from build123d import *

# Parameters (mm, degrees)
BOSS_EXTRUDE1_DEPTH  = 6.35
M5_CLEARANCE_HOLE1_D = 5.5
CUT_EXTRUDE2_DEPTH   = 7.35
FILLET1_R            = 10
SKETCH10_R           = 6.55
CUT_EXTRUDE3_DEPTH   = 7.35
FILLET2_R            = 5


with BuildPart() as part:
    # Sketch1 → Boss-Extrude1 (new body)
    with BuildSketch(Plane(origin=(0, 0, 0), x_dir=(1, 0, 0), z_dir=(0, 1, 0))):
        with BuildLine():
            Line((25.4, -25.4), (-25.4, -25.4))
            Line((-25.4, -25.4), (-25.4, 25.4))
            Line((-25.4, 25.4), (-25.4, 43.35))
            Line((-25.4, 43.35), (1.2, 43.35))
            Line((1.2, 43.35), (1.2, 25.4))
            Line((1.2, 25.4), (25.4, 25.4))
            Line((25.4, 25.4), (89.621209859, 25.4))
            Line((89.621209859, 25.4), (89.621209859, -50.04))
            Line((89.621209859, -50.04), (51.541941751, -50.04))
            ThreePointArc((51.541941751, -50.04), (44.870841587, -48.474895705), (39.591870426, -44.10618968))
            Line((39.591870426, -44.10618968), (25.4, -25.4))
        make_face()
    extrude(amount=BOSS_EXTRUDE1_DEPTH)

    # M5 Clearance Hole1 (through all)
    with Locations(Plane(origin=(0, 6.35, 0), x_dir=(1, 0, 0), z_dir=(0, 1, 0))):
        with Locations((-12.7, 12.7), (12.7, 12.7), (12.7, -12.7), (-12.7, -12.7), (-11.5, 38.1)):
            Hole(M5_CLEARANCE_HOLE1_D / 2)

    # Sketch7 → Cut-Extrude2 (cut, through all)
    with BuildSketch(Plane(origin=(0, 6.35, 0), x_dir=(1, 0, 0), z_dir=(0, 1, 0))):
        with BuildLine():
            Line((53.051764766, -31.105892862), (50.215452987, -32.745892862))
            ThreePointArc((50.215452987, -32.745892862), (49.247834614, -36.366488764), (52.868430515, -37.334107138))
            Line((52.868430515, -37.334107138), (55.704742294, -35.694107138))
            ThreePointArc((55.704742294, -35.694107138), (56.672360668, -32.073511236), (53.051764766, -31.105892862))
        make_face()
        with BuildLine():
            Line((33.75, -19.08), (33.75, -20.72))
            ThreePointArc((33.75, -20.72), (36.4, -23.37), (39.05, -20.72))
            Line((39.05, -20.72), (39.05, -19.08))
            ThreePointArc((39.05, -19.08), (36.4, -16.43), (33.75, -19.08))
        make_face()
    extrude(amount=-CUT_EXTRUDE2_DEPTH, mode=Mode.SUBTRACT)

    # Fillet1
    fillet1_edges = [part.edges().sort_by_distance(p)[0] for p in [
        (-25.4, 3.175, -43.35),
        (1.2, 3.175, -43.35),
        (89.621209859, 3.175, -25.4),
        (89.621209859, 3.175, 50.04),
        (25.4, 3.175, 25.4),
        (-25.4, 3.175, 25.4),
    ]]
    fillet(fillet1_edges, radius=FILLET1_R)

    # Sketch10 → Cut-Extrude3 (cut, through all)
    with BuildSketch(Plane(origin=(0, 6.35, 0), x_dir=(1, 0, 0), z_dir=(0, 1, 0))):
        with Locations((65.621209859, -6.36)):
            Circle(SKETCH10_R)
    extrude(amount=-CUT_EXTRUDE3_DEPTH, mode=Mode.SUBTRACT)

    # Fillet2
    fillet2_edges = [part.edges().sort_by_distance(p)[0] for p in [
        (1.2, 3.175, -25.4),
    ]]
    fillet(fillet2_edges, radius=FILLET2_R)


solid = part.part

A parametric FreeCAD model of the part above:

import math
import FreeCAD as App
import Part
import Sketcher
from FreeCAD import Vector


def edges_at(feature, points):
    """Names of the edges that pass closest to the given points."""
    edges = feature.Shape.Edges
    near = lambda p: min(range(len(edges)), key=lambda i: edges[i].distToShape(Part.Vertex(*p))[0])
    return sorted({f"Edge{near(p) + 1}" for p in points})

doc = App.newDocument("Part")
body = doc.addObject("PartDesign::Body", "Body")

# Sketch on XZ plane
sketch1 = body.newObject("Sketcher::SketchObject", "Sketch")
sketch1.AttachmentSupport = (doc.getObject("XZ_Plane"), [""])
sketch1.MapMode = "FlatFace"
sketch1.addGeometry([
    Part.LineSegment(Vector(-25.4, 25.4, 0), Vector(25.4, 25.4, 0)),  # 0
    Part.LineSegment(Vector(25.4, 25.4, 0), Vector(39.59187, 44.10619, 0)),  # 1
    Part.ArcOfCircle(Part.Circle(Vector(51.541942, 35.04, 0), Vector(0, 0, 1), 15), math.radians(90), math.radians(142.813412)),  # 2
    Part.LineSegment(Vector(51.541942, 50.04, 0), Vector(89.62121, 50.04, 0)),  # 3
    Part.LineSegment(Vector(89.62121, 50.04, 0), Vector(89.62121, -25.4, 0)),  # 4
    Part.LineSegment(Vector(89.62121, -25.4, 0), Vector(1.2, -25.4, 0)),  # 5
    Part.LineSegment(Vector(1.2, -25.4, 0), Vector(1.2, -43.35, 0)),  # 6
    Part.LineSegment(Vector(1.2, -43.35, 0), Vector(-25.4, -43.35, 0)),  # 7
    Part.LineSegment(Vector(-25.4, -43.35, 0), Vector(-25.4, 25.4, 0)),  # 8
], False)
sketch1.addConstraint([
    Sketcher.Constraint("Coincident", 0, 2, 1, 1),
    Sketcher.Constraint("Tangent", 1, 2, 2, 2),
    Sketcher.Constraint("Tangent", 2, 1, 3, 1),
    Sketcher.Constraint("Coincident", 3, 2, 4, 1),
    Sketcher.Constraint("Coincident", 4, 2, 5, 1),
    Sketcher.Constraint("Coincident", 5, 2, 6, 1),
    Sketcher.Constraint("Coincident", 6, 2, 7, 1),
    Sketcher.Constraint("Coincident", 7, 2, 8, 1),
    Sketcher.Constraint("Coincident", 8, 2, 0, 1),
    Sketcher.Constraint("Horizontal", 0),
    Sketcher.Constraint("Horizontal", 3),
    Sketcher.Constraint("Vertical", 4),
    Sketcher.Constraint("Horizontal", 5),
    Sketcher.Constraint("Vertical", 6),
    Sketcher.Constraint("Horizontal", 7),
    Sketcher.Constraint("Vertical", 8),
    Sketcher.Constraint("Radius", 2, 15.0),
    Sketcher.Constraint("DistanceX", 0, 1, 0, 2, 50.8),
    Sketcher.Constraint("DistanceX", 7, 2, 7, 1, 26.6),
    Sketcher.Constraint("DistanceY", 4, 2, 4, 1, 75.44),
    Sketcher.Constraint("DistanceY", 6, 2, 6, 1, 17.95),
    Sketcher.Constraint("DistanceY", 8, 1, 8, 2, 68.75),
    Sketcher.Constraint("DistanceX", -1, 1, 0, 2, 25.4),
    Sketcher.Constraint("DistanceY", -1, 1, 0, 2, 25.4),
    Sketcher.Constraint("DistanceX", 3, 1, 3, 2, 38.079268),
    Sketcher.Constraint("DistanceX", 5, 2, 5, 1, 88.42121),
])
pad1 = body.newObject("PartDesign::Pad", "Pad")
pad1.Profile = sketch1
pad1.Length = 6.35
pad1.Reversed = True

# Sketch on XZ plane
sketch2 = body.newObject("Sketcher::SketchObject", "Sketch001")
sketch2.AttachmentSupport = (doc.getObject("XZ_Plane"), [""])
sketch2.MapMode = "FlatFace"
sketch2.AttachmentOffset = App.Placement(Vector(0, 0, -6.35), App.Rotation())
sketch2.addGeometry([
    Part.Circle(Vector(-12.7, -12.7, 0), Vector(0, 0, 1), 2.75),  # 0
    Part.Circle(Vector(12.7, -12.7, 0), Vector(0, 0, 1), 2.75),  # 1
    Part.Circle(Vector(12.7, 12.7, 0), Vector(0, 0, 1), 2.75),  # 2
    Part.Circle(Vector(-12.7, 12.7, 0), Vector(0, 0, 1), 2.75),  # 3
    Part.Circle(Vector(-11.5, -38.1, 0), Vector(0, 0, 1), 2.75),  # 4
], False)
sketch2.addConstraint([
    Sketcher.Constraint("Equal", 0, 1),
    Sketcher.Constraint("Equal", 1, 2),
    Sketcher.Constraint("Equal", 2, 3),
    Sketcher.Constraint("Equal", 3, 4),
    Sketcher.Constraint("Symmetric", 0, 3, 2, 3, -1, 1),
    Sketcher.Constraint("Symmetric", 1, 3, 3, 3, -1, 1),
    Sketcher.Constraint("Symmetric", 0, 3, 1, 3, -2),
    Sketcher.Constraint("Diameter", 0, 5.5),
    Sketcher.Constraint("DistanceX", 0, 3, -1, 1, 12.7),
    Sketcher.Constraint("DistanceY", 0, 3, -1, 1, 12.7),
    Sketcher.Constraint("DistanceX", 4, 3, -1, 1, 11.5),
    Sketcher.Constraint("DistanceY", 4, 3, -1, 1, 38.1),
])
doc.recompute()
hole = body.newObject("PartDesign::Hole", "Hole")
hole.Profile = sketch2
hole.ThreadType = "None"
hole.Diameter = 5.5
hole.DepthType = "ThroughAll"
hole.Reversed = True

# Sketch on XZ plane
sketch3 = body.newObject("Sketcher::SketchObject", "Sketch002")
sketch3.AttachmentSupport = (doc.getObject("XZ_Plane"), [""])
sketch3.MapMode = "FlatFace"
sketch3.AttachmentOffset = App.Placement(Vector(0, 0, -6.35), App.Rotation())
sketch3.addGeometry([
    Part.LineSegment(Vector(53.051765, 31.105893, 0), Vector(50.215453, 32.745893, 0)),  # 0
    Part.ArcOfCircle(Part.Circle(Vector(51.541942, 35.04, 0), Vector(0, 0, 1), 2.65), math.radians(59.962825), math.radians(239.962825)),  # 1
    Part.LineSegment(Vector(52.868431, 37.334107, 0), Vector(55.704742, 35.694107, 0)),  # 2
    Part.ArcOfCircle(Part.Circle(Vector(54.378254, 33.4, 0), Vector(0, 0, 1), 2.65), math.radians(-120.037175), math.radians(59.962825)),  # 3
    Part.LineSegment(Vector(33.75, 19.08, 0), Vector(33.75, 20.72, 0)),  # 4
    Part.ArcOfCircle(Part.Circle(Vector(36.4, 20.72, 0), Vector(0, 0, 1), 2.65), math.radians(0), math.radians(180)),  # 5
    Part.LineSegment(Vector(39.05, 20.72, 0), Vector(39.05, 19.08, 0)),  # 6
    Part.ArcOfCircle(Part.Circle(Vector(36.4, 19.08, 0), Vector(0, 0, 1), 2.65), math.radians(180), math.radians(360)),  # 7
], False)
sketch3.addConstraint([
    Sketcher.Constraint("Tangent", 0, 2, 1, 2),
    Sketcher.Constraint("Tangent", 1, 1, 2, 1),
    Sketcher.Constraint("Tangent", 2, 2, 3, 2),
    Sketcher.Constraint("Tangent", 3, 1, 0, 1),
    Sketcher.Constraint("Tangent", 4, 2, 5, 2),
    Sketcher.Constraint("Tangent", 5, 1, 6, 1),
    Sketcher.Constraint("Tangent", 6, 2, 7, 2),
    Sketcher.Constraint("Tangent", 7, 1, 4, 1),
    Sketcher.Constraint("Vertical", 4),
    Sketcher.Constraint("Vertical", 6),
    Sketcher.Constraint("Equal", 1, 3),
    Sketcher.Constraint("Equal", 3, 5),
    Sketcher.Constraint("Radius", 1, 2.65),
    Sketcher.Constraint("DistanceY", 4, 1, 4, 2, 1.64),
    Sketcher.Constraint("DistanceY", -1, 1, 3, 3, 33.4),
    Sketcher.Constraint("DistanceX", -1, 1, 5, 3, 36.4),
    Sketcher.Constraint("DistanceY", -1, 1, 1, 3, 35.04),
    Sketcher.Constraint("DistanceY", -1, 1, 5, 3, 20.72),
    Sketcher.Constraint("DistanceX", 0, 2, 3, 3, 4.162801),
    Sketcher.Constraint("DistanceX", -1, 1, 1, 3, 51.541942),
])
pocket1 = body.newObject("PartDesign::Pocket", "Pocket")
pocket1.Profile = sketch3
pocket1.Type = "ThroughAll"
pocket1.Reversed = True
doc.recompute()

fillet = body.newObject("PartDesign::Fillet", "Fillet")
fillet.Base = (pocket1, edges_at(pocket1, [
    (-25.4, 3.175, -43.35),
    (1.2, 3.175, -43.35),
    (89.621, 3.175, -25.4),
    (89.621, 3.175, 50.04),
    (25.4, 3.175, 25.4),
    (-25.4, 3.175, 25.4),
]))
fillet.Radius = 10

# Sketch on XZ plane
sketch4 = body.newObject("Sketcher::SketchObject", "Sketch003")
sketch4.AttachmentSupport = (doc.getObject("XZ_Plane"), [""])
sketch4.MapMode = "FlatFace"
sketch4.AttachmentOffset = App.Placement(Vector(0, 0, -6.35), App.Rotation())
sketch4.addGeometry(Part.Circle(Vector(65.62121, 6.36, 0), Vector(0, 0, 1), 6.55), False)
sketch4.addConstraint([
    Sketcher.Constraint("Diameter", 0, 13.1),
    Sketcher.Constraint("DistanceY", -1, 1, 0, 3, 6.36),
    Sketcher.Constraint("DistanceX", -1, 1, 0, 3, 65.62121),
])
pocket2 = body.newObject("PartDesign::Pocket", "Pocket001")
pocket2.Profile = sketch4
pocket2.Type = "ThroughAll"
pocket2.Reversed = True
doc.recompute()

fillet2 = body.newObject("PartDesign::Fillet", "Fillet001")
fillet2.Base = (pocket2, edges_at(pocket2, [(1.2, 3.175, -25.4)]))
fillet2.Radius = 5

doc.recompute()
